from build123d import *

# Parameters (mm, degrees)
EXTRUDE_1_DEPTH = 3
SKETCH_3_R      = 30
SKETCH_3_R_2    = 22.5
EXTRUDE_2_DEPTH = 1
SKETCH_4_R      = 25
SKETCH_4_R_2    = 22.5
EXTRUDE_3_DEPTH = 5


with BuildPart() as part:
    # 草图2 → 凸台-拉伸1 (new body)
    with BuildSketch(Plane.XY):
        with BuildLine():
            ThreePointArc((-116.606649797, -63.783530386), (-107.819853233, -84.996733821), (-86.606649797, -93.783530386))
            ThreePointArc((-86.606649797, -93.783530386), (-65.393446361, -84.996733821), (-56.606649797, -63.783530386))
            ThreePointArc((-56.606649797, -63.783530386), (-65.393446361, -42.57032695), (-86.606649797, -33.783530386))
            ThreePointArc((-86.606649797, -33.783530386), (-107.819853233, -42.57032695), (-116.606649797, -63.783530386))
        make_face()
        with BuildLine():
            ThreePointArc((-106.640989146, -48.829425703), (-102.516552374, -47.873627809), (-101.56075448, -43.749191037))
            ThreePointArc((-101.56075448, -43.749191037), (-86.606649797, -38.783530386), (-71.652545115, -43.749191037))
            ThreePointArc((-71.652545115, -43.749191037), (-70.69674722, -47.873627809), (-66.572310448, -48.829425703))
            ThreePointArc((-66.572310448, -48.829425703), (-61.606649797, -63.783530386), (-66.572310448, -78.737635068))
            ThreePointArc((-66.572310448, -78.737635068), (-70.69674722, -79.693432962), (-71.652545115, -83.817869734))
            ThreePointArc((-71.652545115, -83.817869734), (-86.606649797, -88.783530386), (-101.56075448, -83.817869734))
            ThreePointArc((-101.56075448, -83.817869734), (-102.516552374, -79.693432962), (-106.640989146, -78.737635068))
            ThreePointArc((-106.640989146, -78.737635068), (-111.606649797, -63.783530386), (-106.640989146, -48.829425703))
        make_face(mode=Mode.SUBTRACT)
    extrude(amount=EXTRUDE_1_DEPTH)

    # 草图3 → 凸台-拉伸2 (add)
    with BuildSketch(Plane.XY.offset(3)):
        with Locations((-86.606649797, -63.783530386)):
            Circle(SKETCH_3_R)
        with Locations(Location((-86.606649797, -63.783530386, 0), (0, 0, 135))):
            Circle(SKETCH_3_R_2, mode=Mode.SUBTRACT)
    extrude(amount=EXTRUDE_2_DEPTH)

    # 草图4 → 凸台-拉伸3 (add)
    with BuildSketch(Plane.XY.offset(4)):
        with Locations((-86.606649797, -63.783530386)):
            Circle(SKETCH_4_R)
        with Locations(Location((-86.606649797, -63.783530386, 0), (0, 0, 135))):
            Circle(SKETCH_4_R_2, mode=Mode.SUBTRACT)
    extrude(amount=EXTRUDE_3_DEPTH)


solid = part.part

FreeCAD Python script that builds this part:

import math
import FreeCAD as App
import Part
import Sketcher

doc = App.newDocument("Part")
params = doc.addObject("Spreadsheet::Sheet", "Params")
for row, (alias, value) in enumerate([
    ("sketch1_radius", "30 mm"),
    ("sketch1_radius2", "25 mm"),
    ("sketch1_radius3", "4 mm"),
    ("pad1_length", "3 mm"),
    ("sketch2_diameter", "60 mm"),
    ("sketch2_diameter2", "45 mm"),
    ("pad2_length", "1 mm"),
    ("sketch3_diameter", "50 mm"),
    ("sketch3_diameter2", "45 mm"),
    ("pad3_length", "5 mm"),
], start=1):
    params.set(f"A{row}", alias)
    params.set(f"B{row}", "=" + value)
    params.setAlias(f"B{row}", alias)

body = doc.addObject("PartDesign::Body", "Body")

sketch1 = body.newObject("Sketcher::SketchObject", "Sketch")
sketch1.AttachmentSupport = (doc.getObject("XY_Plane"), [""])
sketch1.MapMode = "FlatFace"
sketch1.addGeometry([
    Part.ArcOfCircle(Part.Circle(App.Vector(-86.6, -63.8, 0), App.Vector(0, 0, 1), 30), math.radians(180), math.radians(270)),
    Part.ArcOfCircle(Part.Circle(App.Vector(-86.6, -63.8, 0), App.Vector(0, 0, 1), 30), math.radians(-90), math.radians(0)),
    Part.ArcOfCircle(Part.Circle(App.Vector(-86.6, -63.8, 0), App.Vector(0, 0, 1), 30), math.radians(0), math.radians(90)),
    Part.ArcOfCircle(Part.Circle(App.Vector(-86.6, -63.8, 0), App.Vector(0, 0, 1), 30), math.radians(90), math.radians(180)),
    Part.ArcOfCircle(Part.Circle(App.Vector(-86.6, -63.8, 0), App.Vector(0, 0, 1), 25), math.radians(143), math.radians(217)),
    Part.ArcOfCircle(Part.Circle(App.Vector(-105.3, -45, 0), App.Vector(0, 0, 1), 4), math.radians(-109), math.radians(19)),
    Part.ArcOfCircle(Part.Circle(App.Vector(-86.6, -63.8, 0), App.Vector(0, 0, 1), 25), math.radians(53), math.radians(127)),
    Part.ArcOfCircle(Part.Circle(App.Vector(-67.9, -45, 0), App.Vector(0, 0, 1), 4), math.radians(161), math.radians(289)),
    Part.ArcOfCircle(Part.Circle(App.Vector(-86.6, -63.8, 0), App.Vector(0, 0, 1), 25), math.radians(-37), math.radians(37)),
    Part.ArcOfCircle(Part.Circle(App.Vector(-67.9, -82.5, 0), App.Vector(0, 0, 1), 4), math.radians(71), math.radians(199)),
    Part.ArcOfCircle(Part.Circle(App.Vector(-86.6, -63.8, 0), App.Vector(0, 0, 1), 25), math.radians(-127), math.radians(-53)),
    Part.ArcOfCircle(Part.Circle(App.Vector(-105.3, -82.5, 0), App.Vector(0, 0, 1), 4), math.radians(-19), math.radians(109)),
], False)
sketch1.addConstraint([
    Sketcher.Constraint("Tangent", 0, 2, 1, 1),
    Sketcher.Constraint("Tangent", 1, 2, 2, 1),
    Sketcher.Constraint("Tangent", 2, 2, 3, 1),
    Sketcher.Constraint("Tangent", 3, 2, 0, 1),
    Sketcher.Constraint("Coincident", 4, 1, 5, 1),
    Sketcher.Constraint("Coincident", 5, 2, 6, 2),
    Sketcher.Constraint("Coincident", 6, 1, 7, 1),
    Sketcher.Constraint("Coincident", 7, 2, 8, 2),
    Sketcher.Constraint("Coincident", 8, 1, 9, 1),
    Sketcher.Constraint("Coincident", 9, 2, 10, 2),
    Sketcher.Constraint("Coincident", 10, 1, 11, 1),
    Sketcher.Constraint("Coincident", 11, 2, 4, 2),
    Sketcher.Constraint("Coincident", 4, 3, 0, 3),
    Sketcher.Constraint("Coincident", 6, 3, 0, 3),
    Sketcher.Constraint("Coincident", 8, 3, 0, 3),
    Sketcher.Constraint("Coincident", 10, 3, 0, 3),
    Sketcher.Constraint("Equal", 0, 1),
    Sketcher.Constraint("Equal", 4, 6),
    Sketcher.Constraint("Equal", 5, 7),
    Sketcher.Constraint("Equal", 6, 8),
    Sketcher.Constraint("Equal", 7, 9),
    Sketcher.Constraint("Equal", 8, 10),
    Sketcher.Constraint("Equal", 9, 11),
    Sketcher.Constraint("Horizontal", 5, 3, 7, 3),
    Sketcher.Constraint("Horizontal", 9, 3, 11, 3),
    Sketcher.Constraint("Horizontal", 10, 3, 1, 2),
    Sketcher.Constraint("Horizontal", 1, 2, 3, 2),
    Sketcher.Constraint("Horizontal", 5, 2, 6, 1),
    Sketcher.Constraint("Horizontal", 9, 2, 10, 1),
    Sketcher.Constraint("Vertical", 7, 3, 9, 3),
    Sketcher.Constraint("Vertical", 10, 3, 0, 2),
    Sketcher.Constraint("Vertical", 0, 2, 2, 2),
    Sketcher.Constraint("Vertical", 7, 2, 8, 1),
    Sketcher.Constraint("Radius", 0, 30.0),
    Sketcher.Constraint("Radius", 4, 25.0),
    Sketcher.Constraint("Radius", 5, 4.0),
    Sketcher.Constraint("DistanceY", 5, 3, -1, 1, 45.045201),
    Sketcher.Constraint("DistanceX", 0, 3, -1, 1, 86.60665),
    Sketcher.Constraint("DistanceY", 0, 3, -1, 1, 63.78353),
    Sketcher.Constraint("DistanceX", 5, 3, -1, 1, 105.344979),
])
sketch1.setExpression("Constraints[33]", "Params.sketch1_radius")
sketch1.setExpression("Constraints[34]", "Params.sketch1_radius2")
sketch1.setExpression("Constraints[35]", "Params.sketch1_radius3")
pad1 = body.newObject("PartDesign::Pad", "Pad")
pad1.Profile = sketch1
pad1.setExpression("Length", "Params.pad1_length")

sketch2 = body.newObject("Sketcher::SketchObject", "Sketch001")
sketch2.AttachmentSupport = (doc.getObject("XY_Plane"), [""])
sketch2.MapMode = "FlatFace"
sketch2.AttachmentOffset = App.Placement(App.Vector(0, 0, 3), App.Rotation())
sketch2.addGeometry([
    Part.Circle(App.Vector(-87, -64, 0), App.Vector(0, 0, 1), 30),
    Part.Circle(App.Vector(-87, -64, 0), App.Vector(0, 0, 1), 22),
], False)
sketch2.addConstraint([
    Sketcher.Constraint("Coincident", 1, 3, 0, 3),
    Sketcher.Constraint("Diameter", 0, 60.0),
    Sketcher.Constraint("Diameter", 1, 45.0),
    Sketcher.Constraint("DistanceX", 0, 3, -1, 1, 86.60665),
    Sketcher.Constraint("DistanceY", 0, 3, -1, 1, 63.78353),
])
sketch2.setExpression("Constraints[1]", "Params.sketch2_diameter")
sketch2.setExpression("Constraints[2]", "Params.sketch2_diameter2")
pad2 = body.newObject("PartDesign::Pad", "Pad001")
pad2.Profile = sketch2
pad2.setExpression("Length", "Params.pad2_length")

sketch3 = body.newObject("Sketcher::SketchObject", "Sketch002")
sketch3.AttachmentSupport = (doc.getObject("XY_Plane"), [""])
sketch3.MapMode = "FlatFace"
sketch3.AttachmentOffset = App.Placement(App.Vector(0, 0, 4), App.Rotation())
sketch3.addGeometry([
    Part.Circle(App.Vector(-87, -64, 0), App.Vector(0, 0, 1), 25),
    Part.Circle(App.Vector(-87, -64, 0), App.Vector(0, 0, 1), 22),
], False)
sketch3.addConstraint([
    Sketcher.Constraint("Coincident", 1, 3, 0, 3),
    Sketcher.Constraint("Diameter", 0, 50.0),
    Sketcher.Constraint("Diameter", 1, 45.0),
    Sketcher.Constraint("DistanceX", 0, 3, -1, 1, 86.60665),
    Sketcher.Constraint("DistanceY", 0, 3, -1, 1, 63.78353),
])
sketch3.setExpression("Constraints[1]", "Params.sketch3_diameter")
sketch3.setExpression("Constraints[2]", "Params.sketch3_diameter2")
pad3 = body.newObject("PartDesign::Pad", "Pad002")
pad3.Profile = sketch3
pad3.setExpression("Length", "Params.pad3_length")

doc.recompute()
